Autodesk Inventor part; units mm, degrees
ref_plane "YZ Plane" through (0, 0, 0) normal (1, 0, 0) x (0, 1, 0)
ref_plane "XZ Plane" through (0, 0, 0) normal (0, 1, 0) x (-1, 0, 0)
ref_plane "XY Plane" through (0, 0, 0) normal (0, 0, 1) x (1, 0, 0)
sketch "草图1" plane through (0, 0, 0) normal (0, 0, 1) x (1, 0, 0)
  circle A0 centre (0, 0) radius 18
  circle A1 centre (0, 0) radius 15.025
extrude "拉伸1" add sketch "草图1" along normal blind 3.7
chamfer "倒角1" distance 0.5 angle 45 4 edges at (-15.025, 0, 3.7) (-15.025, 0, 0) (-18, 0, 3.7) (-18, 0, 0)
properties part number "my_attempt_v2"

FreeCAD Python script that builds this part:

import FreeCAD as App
import Part
import Sketcher

V = App.Vector
Q = App.Units.Quantity


def edges_at(feature, points):
    """Names of the edges that pass closest to the given points."""
    edges = feature.Shape.Edges
    near = lambda p: min(range(len(edges)), key=lambda i: edges[i].distToShape(Part.Vertex(*p))[0])
    return sorted({f"Edge{near(p) + 1}" for p in points})

doc = App.newDocument("Part")
body = doc.addObject("PartDesign::Body", "Body")

sketch1 = body.newObject("Sketcher::SketchObject", "Sketch")
sketch1.AttachmentSupport = (doc.getObject("XY_Plane"), [""])
sketch1.MapMode = "FlatFace"
sketch1.addGeometry([
    Part.Circle(V(0, 0, 0), V(0, 0, 1), 18),
    Part.Circle(V(0, 0, 0), V(0, 0, 1), 15),
], False)
sketch1.addConstraint([
    Sketcher.Constraint("Coincident", 0, 3, -1, 1),
    Sketcher.Constraint("Coincident", 1, 3, -1, 1),
    Sketcher.Constraint("Diameter", 0, Q("36 mm")),
    Sketcher.Constraint("Diameter", 1, Q("30.05 mm")),
])
pad1 = body.newObject("PartDesign::Pad", "Pad")
pad1.Profile = sketch1
pad1.Length = 3.7
doc.recompute()

chamfer = body.newObject("PartDesign::Chamfer", "Chamfer")
chamfer.Base = (pad1, edges_at(pad1, [
    (-15.025, 0, 3.7),
    (-15.025, 0, 0),
    (-18, 0, 3.7),
    (-18, 0, 0),
]))
chamfer.Size = 0.5

doc.recompute()
